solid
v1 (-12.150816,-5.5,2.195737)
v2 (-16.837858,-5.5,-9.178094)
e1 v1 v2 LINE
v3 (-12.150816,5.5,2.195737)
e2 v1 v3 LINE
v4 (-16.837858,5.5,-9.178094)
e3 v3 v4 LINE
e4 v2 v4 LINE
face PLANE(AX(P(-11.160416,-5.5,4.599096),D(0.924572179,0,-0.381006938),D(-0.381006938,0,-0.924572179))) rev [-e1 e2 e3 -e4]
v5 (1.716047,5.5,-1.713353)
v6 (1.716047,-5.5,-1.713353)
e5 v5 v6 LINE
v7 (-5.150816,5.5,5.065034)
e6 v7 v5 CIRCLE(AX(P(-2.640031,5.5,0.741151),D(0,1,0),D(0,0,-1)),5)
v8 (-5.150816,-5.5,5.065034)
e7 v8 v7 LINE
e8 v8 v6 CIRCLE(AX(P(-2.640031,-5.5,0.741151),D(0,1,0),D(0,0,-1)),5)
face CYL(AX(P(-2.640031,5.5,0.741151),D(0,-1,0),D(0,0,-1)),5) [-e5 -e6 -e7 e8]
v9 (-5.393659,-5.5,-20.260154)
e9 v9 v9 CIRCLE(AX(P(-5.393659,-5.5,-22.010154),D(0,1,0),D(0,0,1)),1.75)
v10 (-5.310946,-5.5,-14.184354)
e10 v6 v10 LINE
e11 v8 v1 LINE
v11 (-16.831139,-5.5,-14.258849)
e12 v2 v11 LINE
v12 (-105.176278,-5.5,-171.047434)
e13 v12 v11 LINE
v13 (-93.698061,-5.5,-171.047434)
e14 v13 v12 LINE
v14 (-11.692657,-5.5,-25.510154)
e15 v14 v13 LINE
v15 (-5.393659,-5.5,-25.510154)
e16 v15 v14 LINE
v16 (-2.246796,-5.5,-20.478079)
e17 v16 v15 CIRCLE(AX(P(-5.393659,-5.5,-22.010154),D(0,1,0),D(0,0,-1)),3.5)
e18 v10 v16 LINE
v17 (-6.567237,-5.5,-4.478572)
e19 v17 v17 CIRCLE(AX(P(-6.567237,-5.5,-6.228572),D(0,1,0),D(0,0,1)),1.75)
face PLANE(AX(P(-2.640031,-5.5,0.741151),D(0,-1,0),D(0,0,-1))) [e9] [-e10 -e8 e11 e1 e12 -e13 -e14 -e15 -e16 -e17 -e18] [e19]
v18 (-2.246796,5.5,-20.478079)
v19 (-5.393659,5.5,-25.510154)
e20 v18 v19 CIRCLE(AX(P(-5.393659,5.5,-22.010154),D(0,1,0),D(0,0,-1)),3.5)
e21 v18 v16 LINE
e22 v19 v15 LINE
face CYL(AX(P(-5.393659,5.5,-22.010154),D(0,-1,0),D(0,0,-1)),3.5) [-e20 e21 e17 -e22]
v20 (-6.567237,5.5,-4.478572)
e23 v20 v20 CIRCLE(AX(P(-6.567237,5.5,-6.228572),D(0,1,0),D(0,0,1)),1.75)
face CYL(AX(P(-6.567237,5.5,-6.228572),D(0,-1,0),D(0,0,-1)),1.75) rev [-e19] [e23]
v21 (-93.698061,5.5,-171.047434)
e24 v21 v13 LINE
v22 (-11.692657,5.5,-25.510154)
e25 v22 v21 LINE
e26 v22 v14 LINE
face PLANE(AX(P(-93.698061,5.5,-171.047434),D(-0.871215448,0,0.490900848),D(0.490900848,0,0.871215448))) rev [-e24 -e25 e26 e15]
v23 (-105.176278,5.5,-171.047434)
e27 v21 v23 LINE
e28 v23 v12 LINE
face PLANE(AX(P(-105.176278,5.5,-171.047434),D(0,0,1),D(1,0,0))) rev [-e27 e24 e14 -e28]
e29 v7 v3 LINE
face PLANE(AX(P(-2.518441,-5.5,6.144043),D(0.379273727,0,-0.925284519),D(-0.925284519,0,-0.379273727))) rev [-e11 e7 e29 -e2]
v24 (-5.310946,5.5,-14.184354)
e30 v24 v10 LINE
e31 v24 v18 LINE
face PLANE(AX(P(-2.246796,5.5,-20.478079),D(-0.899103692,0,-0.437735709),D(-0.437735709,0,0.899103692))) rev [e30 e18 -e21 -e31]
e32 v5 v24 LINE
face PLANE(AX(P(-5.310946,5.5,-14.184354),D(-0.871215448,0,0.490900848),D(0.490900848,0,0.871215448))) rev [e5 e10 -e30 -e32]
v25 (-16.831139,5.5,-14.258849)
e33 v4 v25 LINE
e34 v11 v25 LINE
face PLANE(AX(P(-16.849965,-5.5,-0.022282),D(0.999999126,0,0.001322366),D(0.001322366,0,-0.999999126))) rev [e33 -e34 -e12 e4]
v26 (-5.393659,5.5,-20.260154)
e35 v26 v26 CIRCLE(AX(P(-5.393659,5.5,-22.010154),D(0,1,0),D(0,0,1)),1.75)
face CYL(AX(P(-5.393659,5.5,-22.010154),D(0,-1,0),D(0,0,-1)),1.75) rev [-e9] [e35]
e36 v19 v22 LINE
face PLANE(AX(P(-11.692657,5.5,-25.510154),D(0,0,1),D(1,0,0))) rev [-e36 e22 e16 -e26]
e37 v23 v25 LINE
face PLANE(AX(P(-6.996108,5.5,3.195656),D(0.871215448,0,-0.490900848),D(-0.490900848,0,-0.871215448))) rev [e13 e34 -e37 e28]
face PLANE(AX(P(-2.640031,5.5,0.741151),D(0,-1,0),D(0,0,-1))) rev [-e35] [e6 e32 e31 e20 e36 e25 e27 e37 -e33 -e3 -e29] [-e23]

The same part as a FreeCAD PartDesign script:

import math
import FreeCAD as App
import Part
import Sketcher

V = App.Vector

doc = App.newDocument("Part")
body = doc.addObject("PartDesign::Body", "Body")

sketch1 = doc.addObject("Sketcher::SketchObject", "Sketch")
body.addObject(sketch1)
sketch1.AttachmentSupport = (doc.XZ_Plane, [""])
sketch1.MapMode = "FlatFace"
sketch1.addGeometry(Part.LineSegment(V(-105.2, -171, 0), V(-7, 3.2, 0)), False)
sketch1.addGeometry(Part.ArcOfCircle(Part.Circle(V(-2.6, 0.7, 0), V(0, 0, 1), 5), math.radians(-29), math.radians(151)), False)
sketch1.addGeometry(Part.LineSegment(V(1.7, -1.7, 0), V(-5.3, -14.2, 0)), False)
sketch1.addGeometry(Part.LineSegment(V(-5.3, -14.2, 0), V(-2.2, -20.5, 0)), False)
sketch1.addGeometry(Part.ArcOfCircle(Part.Circle(V(-5.4, -22, 0), V(0, 0, 1), 3.5), math.radians(-90), math.radians(26)), False)
sketch1.addGeometry(Part.LineSegment(V(-5.4, -25.5, 0), V(-11.7, -25.5, 0)), False)
sketch1.addGeometry(Part.LineSegment(V(-11.7, -25.5, 0), V(-93.7, -171, 0)), False)
sketch1.addGeometry(Part.LineSegment(V(-93.7, -171, 0), V(-105.2, -171, 0)), False)
sketch1.addGeometry(Part.Circle(V(-6.6, -6.2, 0), V(0, 0, 1), 1.8), False)
sketch1.addGeometry(Part.Circle(V(-5.4, -22, 0), V(0, 0, 1), 1.8), False)
sketch1.addConstraint(Sketcher.Constraint("Tangent", 0, 2, 1, 2))
sketch1.addConstraint(Sketcher.Constraint("Tangent", 1, 1, 2, 1))
sketch1.addConstraint(Sketcher.Constraint("Coincident", 2, 2, 3, 1))
sketch1.addConstraint(Sketcher.Constraint("Tangent", 3, 2, 4, 2))
sketch1.addConstraint(Sketcher.Constraint("Tangent", 4, 1, 5, 1))
sketch1.addConstraint(Sketcher.Constraint("Coincident", 5, 2, 6, 1))
sketch1.addConstraint(Sketcher.Constraint("Coincident", 6, 2, 7, 1))
sketch1.addConstraint(Sketcher.Constraint("Coincident", 7, 2, 0, 1))
sketch1.addConstraint(Sketcher.Constraint("Horizontal", 5))
sketch1.addConstraint(Sketcher.Constraint("Horizontal", 7))
sketch1.addConstraint(Sketcher.Constraint("Coincident", 9, 3, 4, 3))
sketch1.addConstraint(Sketcher.Constraint("Equal", 8, 9))
sketch1.addConstraint(Sketcher.Constraint("Parallel", 0, 2))
sketch1.addConstraint(Sketcher.Constraint("Parallel", 2, 6))
sketch1.addConstraint(Sketcher.Constraint("Radius", 1, 5.0))
sketch1.addConstraint(Sketcher.Constraint("Diameter", 8, 3.5))
sketch1.addConstraint(Sketcher.Constraint("Radius", 4, 3.5))
sketch1.addConstraint(Sketcher.Constraint("Distance", 0, 200.0))
sketch1.addConstraint(Sketcher.Constraint("Distance", 3, 7.0))
sketch1.addConstraint(Sketcher.Constraint("DistanceX", 5, 2, 5, 1, 6.298998))
sketch1.addConstraint(Sketcher.Constraint("DistanceY", 2, 2, 1, 1, 12.471001))
sketch1.addConstraint(Sketcher.Constraint("DistanceY", 4, 3, 2, 2, 7.825801))
sketch1.addConstraint(Sketcher.Constraint("DistanceX", 6, 2, 4, 1, 88.304401))
sketch1.addConstraint(Sketcher.Constraint("DistanceX", 1, 3, -1, 1, 2.640031))
sketch1.addConstraint(Sketcher.Constraint("DistanceY", -1, 1, 1, 3, 0.741151))
sketch1.addConstraint(Sketcher.Constraint("DistanceX", 8, 3, 4, 3, 1.173578))
sketch1.addConstraint(Sketcher.Constraint("DistanceY", 8, 3, 1, 1, 4.515219))
pad1 = doc.addObject("PartDesign::Pad", "Pad")
body.addObject(pad1)
pad1.Profile = sketch1
pad1.Length = 11
pad1.Midplane = True

sketch2 = doc.addObject("Sketcher::SketchObject", "Sketch001")
body.addObject(sketch2)
sketch2.AttachmentSupport = (doc.XZ_Plane, [""])
sketch2.MapMode = "FlatFace"
sketch2.AttachmentOffset = App.Placement(V(0, 0, -5.5), App.Rotation())
sketch2.addGeometry(Part.LineSegment(V(-12.2, 2.2, 0), V(-5.2, 5.1, 0)), False)
sketch2.addGeometry(Part.ArcOfCircle(Part.Circle(V(-2.6, 0.7, 0), V(0, 0, 1), 5), math.radians(120), math.radians(151)), False)
sketch2.addGeometry(Part.LineSegment(V(-7, 3.2, 0), V(-16.8, -14.3, 0)), False)
sketch2.addGeometry(Part.LineSegment(V(-16.8, -14.3, 0), V(-16.8, -9.2, 0)), False)
sketch2.addGeometry(Part.LineSegment(V(-16.8, -9.2, 0), V(-12.2, 2.2, 0)), False)
sketch2.addConstraint(Sketcher.Constraint("Coincident", 0, 2, 1, 1))
sketch2.addConstraint(Sketcher.Constraint("Tangent", 1, 2, 2, 1))
sketch2.addConstraint(Sketcher.Constraint("Coincident", 2, 2, 3, 1))
sketch2.addConstraint(Sketcher.Constraint("Coincident", 3, 2, 4, 1))
sketch2.addConstraint(Sketcher.Constraint("Coincident", 4, 2, 0, 1))
sketch2.addConstraint(Sketcher.Constraint("Radius", 1, 5.0))
sketch2.addConstraint(Sketcher.Constraint("DistanceY", 2, 2, 1, 3, 15.0))
sketch2.addConstraint(Sketcher.Constraint("DistanceX", 4, 2, 0, 2, 7.0))
sketch2.addConstraint(Sketcher.Constraint("Distance", 0, 7.565241))
sketch2.addConstraint(Sketcher.Constraint("Distance", 2, 20.034659))
sketch2.addConstraint(Sketcher.Constraint("Distance", 3, 5.080759))
sketch2.addConstraint(Sketcher.Constraint("DistanceX", 1, 3, -1, 1, 2.640031))
sketch2.addConstraint(Sketcher.Constraint("DistanceY", -1, 1, 1, 3, 0.741151))
sketch2.addConstraint(Sketcher.Constraint("DistanceY", 1, 2, 0, 2, 1.869378))
sketch2.addConstraint(Sketcher.Constraint("DistanceX", 3, 2, 2, 2, 0.006719))
pad2 = doc.addObject("PartDesign::Pad", "Pad001")
body.addObject(pad2)
pad2.Profile = sketch2
pad2.Length = 11

doc.recompute()
